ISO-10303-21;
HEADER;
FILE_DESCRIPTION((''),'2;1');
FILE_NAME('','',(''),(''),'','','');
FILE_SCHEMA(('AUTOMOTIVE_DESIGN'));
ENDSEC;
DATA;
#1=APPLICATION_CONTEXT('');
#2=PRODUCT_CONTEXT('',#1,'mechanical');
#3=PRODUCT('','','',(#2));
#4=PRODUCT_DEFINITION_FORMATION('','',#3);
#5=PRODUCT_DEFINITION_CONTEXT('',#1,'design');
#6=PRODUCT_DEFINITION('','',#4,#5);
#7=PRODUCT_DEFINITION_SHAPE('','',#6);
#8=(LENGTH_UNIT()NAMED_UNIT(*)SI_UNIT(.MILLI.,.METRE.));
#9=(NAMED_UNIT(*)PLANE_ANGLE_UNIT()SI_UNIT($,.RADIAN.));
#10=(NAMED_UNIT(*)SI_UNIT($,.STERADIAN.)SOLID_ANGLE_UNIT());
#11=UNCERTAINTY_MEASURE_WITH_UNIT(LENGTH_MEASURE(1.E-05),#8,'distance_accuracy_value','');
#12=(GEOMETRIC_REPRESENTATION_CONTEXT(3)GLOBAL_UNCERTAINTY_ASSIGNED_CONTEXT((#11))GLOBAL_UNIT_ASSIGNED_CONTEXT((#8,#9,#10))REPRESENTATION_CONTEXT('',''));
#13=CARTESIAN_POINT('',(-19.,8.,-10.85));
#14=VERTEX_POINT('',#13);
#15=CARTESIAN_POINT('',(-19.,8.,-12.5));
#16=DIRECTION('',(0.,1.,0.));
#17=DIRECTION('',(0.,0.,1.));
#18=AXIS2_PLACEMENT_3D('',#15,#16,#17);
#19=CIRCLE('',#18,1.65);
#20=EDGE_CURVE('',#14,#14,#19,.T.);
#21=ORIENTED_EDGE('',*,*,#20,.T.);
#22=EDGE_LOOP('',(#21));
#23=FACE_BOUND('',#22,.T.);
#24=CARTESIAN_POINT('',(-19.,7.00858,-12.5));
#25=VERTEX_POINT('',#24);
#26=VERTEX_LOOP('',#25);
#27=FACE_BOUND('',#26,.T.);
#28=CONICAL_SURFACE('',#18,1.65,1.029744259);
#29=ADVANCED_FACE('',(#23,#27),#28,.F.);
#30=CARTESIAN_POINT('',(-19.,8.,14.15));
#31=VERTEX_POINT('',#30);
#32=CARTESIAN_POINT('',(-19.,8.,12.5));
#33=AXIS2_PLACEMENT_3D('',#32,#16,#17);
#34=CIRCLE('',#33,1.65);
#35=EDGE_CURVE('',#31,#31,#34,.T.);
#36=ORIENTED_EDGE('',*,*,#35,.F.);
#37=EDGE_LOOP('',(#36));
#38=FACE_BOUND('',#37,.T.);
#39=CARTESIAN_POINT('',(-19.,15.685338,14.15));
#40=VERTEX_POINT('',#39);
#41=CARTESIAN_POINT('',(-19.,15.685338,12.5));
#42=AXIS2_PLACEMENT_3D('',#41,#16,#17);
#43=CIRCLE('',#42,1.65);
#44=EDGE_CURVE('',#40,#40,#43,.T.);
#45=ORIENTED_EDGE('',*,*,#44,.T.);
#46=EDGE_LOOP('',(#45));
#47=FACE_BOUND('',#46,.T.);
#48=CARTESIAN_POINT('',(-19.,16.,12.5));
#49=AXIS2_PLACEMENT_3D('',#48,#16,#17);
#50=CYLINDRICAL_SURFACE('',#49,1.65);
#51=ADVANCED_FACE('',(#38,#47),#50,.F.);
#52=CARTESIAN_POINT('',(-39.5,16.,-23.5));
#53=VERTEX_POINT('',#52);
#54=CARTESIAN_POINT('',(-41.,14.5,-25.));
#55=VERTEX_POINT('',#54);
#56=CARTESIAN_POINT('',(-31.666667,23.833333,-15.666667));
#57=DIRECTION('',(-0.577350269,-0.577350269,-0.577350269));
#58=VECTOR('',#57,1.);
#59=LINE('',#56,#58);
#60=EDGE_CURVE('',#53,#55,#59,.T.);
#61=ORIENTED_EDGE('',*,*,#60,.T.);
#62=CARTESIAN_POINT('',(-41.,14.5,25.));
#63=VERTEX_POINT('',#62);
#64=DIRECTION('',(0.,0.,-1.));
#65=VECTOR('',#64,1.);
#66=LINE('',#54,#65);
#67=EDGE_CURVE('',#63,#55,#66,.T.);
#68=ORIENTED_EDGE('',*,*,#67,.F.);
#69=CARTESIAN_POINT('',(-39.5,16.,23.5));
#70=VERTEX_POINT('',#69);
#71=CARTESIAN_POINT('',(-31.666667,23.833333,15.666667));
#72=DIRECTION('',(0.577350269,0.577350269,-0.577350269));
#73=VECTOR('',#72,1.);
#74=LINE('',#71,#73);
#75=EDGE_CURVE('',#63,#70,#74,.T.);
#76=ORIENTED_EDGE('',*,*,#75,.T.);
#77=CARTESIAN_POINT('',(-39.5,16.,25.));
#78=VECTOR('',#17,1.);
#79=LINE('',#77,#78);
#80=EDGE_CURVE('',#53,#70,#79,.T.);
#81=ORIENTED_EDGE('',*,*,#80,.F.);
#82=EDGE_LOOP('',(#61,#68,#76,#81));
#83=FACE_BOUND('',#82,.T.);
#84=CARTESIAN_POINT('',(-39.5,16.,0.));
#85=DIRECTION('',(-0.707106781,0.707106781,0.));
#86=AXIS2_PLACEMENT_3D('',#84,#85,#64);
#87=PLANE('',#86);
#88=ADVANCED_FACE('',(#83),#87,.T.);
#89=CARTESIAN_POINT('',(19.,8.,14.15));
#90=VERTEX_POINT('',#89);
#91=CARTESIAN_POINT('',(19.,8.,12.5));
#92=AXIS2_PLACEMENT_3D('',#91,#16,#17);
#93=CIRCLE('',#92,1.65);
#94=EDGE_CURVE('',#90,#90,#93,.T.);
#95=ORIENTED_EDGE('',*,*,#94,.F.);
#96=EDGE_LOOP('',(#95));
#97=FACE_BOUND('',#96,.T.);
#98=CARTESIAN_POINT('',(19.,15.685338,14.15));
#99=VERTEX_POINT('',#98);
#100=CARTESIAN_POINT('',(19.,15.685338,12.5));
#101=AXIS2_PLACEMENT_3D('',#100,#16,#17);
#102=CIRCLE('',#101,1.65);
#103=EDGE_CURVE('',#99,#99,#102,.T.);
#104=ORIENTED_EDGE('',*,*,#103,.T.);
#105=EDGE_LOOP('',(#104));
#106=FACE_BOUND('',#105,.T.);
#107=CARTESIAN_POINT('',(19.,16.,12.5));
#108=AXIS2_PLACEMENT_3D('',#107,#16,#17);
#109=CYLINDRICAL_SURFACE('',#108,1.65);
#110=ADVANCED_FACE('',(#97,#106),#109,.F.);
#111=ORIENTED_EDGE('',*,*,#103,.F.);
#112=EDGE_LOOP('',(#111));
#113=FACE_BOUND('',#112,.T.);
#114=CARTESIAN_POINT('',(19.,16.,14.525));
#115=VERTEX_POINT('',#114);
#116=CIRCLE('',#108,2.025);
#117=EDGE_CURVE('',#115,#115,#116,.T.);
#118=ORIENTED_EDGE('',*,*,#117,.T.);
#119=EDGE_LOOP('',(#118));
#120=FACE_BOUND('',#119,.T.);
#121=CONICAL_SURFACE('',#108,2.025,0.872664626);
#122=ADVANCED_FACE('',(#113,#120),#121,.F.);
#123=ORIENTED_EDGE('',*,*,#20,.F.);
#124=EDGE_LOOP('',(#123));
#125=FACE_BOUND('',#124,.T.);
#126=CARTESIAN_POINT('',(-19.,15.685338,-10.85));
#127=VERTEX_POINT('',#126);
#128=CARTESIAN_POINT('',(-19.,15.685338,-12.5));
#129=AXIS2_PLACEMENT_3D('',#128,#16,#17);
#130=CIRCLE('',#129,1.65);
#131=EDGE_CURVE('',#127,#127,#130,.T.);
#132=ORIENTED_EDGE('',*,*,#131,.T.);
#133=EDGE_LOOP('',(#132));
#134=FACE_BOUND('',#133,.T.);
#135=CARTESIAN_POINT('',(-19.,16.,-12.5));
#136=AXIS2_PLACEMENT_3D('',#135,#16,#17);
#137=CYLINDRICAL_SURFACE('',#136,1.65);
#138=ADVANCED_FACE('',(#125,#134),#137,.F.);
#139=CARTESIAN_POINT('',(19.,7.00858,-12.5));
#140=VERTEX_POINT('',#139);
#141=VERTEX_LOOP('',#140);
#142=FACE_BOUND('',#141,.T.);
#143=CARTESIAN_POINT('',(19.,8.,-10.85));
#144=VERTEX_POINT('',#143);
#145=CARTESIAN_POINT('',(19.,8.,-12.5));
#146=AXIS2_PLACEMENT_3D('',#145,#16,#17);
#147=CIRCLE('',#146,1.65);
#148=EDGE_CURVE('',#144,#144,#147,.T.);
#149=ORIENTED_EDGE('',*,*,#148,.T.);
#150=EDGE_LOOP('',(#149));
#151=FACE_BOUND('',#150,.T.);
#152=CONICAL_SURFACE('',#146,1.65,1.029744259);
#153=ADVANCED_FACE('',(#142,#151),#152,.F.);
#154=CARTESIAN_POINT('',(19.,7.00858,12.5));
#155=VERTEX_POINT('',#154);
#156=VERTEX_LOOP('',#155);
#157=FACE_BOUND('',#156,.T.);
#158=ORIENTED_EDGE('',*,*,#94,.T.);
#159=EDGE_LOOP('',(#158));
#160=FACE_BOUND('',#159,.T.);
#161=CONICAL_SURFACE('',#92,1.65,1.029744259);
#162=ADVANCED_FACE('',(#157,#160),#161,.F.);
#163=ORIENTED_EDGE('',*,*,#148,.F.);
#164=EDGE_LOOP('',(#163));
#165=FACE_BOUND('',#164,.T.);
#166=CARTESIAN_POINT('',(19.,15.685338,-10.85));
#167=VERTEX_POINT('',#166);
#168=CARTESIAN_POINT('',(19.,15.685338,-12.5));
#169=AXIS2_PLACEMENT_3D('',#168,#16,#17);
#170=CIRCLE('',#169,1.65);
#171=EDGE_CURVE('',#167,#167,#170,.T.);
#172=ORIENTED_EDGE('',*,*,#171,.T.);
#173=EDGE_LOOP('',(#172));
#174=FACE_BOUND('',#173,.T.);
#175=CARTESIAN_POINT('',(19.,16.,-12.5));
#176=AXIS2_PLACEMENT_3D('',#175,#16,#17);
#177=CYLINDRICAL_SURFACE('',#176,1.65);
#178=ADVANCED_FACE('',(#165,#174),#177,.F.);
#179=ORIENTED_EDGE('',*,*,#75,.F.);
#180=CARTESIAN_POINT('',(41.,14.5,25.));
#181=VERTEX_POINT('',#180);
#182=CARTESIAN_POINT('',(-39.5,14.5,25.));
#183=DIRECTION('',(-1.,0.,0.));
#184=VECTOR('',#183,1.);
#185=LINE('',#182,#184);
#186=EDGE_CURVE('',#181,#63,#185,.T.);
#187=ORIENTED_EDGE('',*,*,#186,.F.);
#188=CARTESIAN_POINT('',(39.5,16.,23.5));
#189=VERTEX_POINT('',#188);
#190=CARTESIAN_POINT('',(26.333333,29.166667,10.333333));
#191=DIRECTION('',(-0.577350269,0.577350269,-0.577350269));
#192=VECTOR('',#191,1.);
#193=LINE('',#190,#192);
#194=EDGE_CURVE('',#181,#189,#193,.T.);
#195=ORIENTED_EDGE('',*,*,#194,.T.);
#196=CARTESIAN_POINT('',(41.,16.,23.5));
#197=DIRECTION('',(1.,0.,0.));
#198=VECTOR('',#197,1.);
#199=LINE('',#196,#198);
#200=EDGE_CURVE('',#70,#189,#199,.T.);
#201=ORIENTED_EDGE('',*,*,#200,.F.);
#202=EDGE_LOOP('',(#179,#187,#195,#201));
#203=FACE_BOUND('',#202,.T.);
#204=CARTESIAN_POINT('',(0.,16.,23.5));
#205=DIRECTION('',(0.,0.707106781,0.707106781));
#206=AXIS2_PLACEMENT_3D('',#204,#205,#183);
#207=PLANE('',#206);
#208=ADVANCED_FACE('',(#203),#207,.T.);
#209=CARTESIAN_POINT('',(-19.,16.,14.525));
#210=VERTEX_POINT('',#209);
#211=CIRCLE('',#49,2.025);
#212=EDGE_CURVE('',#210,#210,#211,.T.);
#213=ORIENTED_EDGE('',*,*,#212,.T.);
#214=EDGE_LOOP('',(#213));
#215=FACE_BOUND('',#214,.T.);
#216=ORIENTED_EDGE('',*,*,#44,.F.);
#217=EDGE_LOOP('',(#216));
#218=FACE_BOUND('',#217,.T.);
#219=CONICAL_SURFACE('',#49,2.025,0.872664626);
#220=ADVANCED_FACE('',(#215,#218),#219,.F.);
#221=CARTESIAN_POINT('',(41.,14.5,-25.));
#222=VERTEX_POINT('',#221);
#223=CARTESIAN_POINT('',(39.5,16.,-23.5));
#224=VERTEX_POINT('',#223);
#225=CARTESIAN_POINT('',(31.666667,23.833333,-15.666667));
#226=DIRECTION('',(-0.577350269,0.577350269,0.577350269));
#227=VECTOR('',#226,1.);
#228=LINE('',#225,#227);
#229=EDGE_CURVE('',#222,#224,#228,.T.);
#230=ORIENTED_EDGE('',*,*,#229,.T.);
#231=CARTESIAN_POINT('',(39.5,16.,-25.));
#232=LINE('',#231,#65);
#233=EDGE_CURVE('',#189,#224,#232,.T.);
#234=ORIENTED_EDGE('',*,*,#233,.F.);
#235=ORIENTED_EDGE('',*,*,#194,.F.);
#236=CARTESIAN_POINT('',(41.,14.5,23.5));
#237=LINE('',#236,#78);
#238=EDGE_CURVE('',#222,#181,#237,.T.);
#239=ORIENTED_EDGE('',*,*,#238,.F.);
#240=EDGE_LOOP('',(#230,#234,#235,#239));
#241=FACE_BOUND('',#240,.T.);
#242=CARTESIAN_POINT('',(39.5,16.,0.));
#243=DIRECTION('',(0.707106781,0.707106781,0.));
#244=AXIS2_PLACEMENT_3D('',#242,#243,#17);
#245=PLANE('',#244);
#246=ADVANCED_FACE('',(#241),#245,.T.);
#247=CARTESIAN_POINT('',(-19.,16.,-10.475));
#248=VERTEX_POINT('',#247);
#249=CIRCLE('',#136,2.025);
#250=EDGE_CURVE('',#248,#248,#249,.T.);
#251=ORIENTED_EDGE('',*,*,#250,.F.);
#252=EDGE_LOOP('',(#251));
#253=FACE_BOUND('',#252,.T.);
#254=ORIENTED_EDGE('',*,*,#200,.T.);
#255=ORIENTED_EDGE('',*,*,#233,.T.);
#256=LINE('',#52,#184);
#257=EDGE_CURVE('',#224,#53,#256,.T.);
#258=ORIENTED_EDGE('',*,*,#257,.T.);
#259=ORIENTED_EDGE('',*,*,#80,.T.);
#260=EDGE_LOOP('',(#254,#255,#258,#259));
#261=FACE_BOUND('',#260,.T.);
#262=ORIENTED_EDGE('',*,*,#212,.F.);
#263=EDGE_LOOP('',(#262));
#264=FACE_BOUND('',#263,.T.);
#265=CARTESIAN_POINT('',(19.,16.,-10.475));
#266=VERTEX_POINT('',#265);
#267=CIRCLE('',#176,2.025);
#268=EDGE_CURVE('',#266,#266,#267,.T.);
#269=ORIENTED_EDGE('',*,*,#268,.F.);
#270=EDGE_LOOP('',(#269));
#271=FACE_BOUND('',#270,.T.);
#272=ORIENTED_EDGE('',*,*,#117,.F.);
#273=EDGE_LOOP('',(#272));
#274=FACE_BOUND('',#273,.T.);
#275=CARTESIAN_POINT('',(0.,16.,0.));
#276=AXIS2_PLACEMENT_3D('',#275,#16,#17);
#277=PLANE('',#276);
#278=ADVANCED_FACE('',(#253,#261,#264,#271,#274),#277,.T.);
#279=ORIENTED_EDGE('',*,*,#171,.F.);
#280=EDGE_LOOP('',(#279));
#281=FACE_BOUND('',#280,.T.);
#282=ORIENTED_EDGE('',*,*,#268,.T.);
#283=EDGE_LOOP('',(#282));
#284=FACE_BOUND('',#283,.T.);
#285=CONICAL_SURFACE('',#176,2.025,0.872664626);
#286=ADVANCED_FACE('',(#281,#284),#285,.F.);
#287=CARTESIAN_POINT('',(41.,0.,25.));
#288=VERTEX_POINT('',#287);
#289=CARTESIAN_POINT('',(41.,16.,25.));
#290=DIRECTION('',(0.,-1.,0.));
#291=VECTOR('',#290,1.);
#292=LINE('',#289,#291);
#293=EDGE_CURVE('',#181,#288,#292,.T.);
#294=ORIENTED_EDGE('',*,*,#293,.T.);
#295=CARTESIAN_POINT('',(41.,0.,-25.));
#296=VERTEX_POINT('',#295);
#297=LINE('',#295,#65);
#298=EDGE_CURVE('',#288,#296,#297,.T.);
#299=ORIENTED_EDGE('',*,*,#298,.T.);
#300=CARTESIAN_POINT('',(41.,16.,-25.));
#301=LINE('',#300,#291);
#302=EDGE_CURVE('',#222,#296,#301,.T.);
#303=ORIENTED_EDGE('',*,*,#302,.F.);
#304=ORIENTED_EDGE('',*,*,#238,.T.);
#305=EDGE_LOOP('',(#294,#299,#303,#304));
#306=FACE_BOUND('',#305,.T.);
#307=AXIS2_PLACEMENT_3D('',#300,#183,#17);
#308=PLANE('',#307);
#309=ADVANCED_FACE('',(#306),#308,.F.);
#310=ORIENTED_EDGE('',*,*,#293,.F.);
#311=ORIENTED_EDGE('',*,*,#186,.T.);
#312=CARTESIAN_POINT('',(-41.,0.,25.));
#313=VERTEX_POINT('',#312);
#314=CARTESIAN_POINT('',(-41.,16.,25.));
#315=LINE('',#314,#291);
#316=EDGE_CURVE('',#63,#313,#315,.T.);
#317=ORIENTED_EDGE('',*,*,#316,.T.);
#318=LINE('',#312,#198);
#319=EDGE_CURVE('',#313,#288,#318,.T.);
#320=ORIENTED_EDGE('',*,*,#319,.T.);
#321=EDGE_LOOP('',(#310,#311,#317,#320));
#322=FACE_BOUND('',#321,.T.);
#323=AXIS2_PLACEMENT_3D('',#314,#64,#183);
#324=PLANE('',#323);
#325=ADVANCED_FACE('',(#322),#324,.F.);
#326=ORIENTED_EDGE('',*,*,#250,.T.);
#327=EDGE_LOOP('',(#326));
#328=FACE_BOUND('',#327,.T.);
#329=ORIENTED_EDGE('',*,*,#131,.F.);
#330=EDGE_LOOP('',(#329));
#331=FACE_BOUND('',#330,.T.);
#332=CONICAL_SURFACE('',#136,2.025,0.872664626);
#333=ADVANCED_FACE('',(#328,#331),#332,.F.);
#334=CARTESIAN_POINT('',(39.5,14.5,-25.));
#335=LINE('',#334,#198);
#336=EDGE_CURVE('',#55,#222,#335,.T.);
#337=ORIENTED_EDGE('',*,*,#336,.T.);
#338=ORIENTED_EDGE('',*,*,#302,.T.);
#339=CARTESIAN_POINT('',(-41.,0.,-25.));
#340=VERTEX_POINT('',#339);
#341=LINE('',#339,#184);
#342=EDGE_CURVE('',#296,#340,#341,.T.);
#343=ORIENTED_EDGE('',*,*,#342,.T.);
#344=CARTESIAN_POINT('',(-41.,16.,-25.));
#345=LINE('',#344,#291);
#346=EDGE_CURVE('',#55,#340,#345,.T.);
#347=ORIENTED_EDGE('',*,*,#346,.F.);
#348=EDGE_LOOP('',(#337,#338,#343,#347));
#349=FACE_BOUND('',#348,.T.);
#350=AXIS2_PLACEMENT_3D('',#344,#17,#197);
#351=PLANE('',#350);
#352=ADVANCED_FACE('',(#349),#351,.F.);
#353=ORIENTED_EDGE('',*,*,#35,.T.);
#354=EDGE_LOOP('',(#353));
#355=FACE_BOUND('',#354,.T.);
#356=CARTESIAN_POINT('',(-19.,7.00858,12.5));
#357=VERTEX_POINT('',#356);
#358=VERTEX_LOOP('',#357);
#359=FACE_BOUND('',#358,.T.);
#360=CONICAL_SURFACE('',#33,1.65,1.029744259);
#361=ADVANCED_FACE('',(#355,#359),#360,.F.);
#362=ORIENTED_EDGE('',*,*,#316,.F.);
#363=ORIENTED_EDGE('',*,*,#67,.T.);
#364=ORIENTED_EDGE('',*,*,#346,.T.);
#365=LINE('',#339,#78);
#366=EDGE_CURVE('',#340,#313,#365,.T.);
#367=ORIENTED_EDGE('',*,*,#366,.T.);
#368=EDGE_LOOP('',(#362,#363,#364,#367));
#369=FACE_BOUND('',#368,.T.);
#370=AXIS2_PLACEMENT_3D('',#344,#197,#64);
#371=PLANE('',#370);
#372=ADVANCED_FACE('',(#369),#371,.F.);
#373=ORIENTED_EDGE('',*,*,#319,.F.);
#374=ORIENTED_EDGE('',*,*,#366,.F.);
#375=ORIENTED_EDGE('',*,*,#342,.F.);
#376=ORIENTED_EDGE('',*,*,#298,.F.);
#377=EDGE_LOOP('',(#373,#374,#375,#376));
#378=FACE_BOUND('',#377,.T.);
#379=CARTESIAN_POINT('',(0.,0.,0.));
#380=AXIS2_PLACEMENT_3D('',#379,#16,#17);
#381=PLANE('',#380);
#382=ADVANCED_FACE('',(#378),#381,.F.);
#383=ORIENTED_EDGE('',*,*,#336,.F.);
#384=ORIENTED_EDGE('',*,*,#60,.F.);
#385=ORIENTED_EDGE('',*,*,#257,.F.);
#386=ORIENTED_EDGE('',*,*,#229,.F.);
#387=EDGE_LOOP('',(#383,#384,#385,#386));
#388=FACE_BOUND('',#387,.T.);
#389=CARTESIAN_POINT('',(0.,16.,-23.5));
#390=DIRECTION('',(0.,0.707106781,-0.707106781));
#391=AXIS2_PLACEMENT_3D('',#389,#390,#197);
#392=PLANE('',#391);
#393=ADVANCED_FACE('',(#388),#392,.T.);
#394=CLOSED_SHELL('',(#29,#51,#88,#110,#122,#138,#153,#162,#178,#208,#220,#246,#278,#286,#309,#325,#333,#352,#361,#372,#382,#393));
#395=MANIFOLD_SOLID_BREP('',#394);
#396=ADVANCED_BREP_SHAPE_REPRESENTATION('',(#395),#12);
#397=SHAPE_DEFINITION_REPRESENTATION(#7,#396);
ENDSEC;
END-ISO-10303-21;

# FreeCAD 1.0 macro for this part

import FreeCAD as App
import Part
import Sketcher
Q = App.Units.Quantity


def edges_at(feature, points):
    """Names of the edges that pass closest to the given points."""
    edges = feature.Shape.Edges
    near = lambda p: min(range(len(edges)), key=lambda i: edges[i].distToShape(Part.Vertex(*p))[0])
    return sorted({f"Edge{near(p) + 1}" for p in points})


def add_polygon(sketch, points):
    """Adds a closed chain of lines whose ends are joined by coincident constraints."""
    first, n = sketch.GeometryCount, len(points)
    for a, b in zip(points, points[1:] + points[:1]):
        sketch.addGeometry(Part.LineSegment(App.Vector(*a, 0), App.Vector(*b, 0)), False)
    for i in range(n):
        sketch.addConstraint(Sketcher.Constraint("Coincident", first + i, 2, first + (i + 1) % n, 1))

doc = App.newDocument("Part")
params = doc.addObject("Spreadsheet::Sheet", "Params")
for row, (alias, value) in enumerate([
    ("sketch1_width", "82 mm"),
    ("sketch1_height", "50 mm"),
    ("pad1_length", "16 mm"),
    ("chamfer_size", "1.5 mm"),
    ("chamfer2_size", "1.5 mm"),
    ("chamfer3_size", "1.5 mm"),
    ("chamfer4_size", "1.5 mm"),
    ("sketch2_diameter", "3.3 mm"),
    ("hole_diameter", "3.3 mm"),
    ("hole_depth", "8 mm"),
    ("hole_csink_diameter", "4.05 mm"),
], start=1):
    params.set(f"A{row}", alias)
    params.set(f"B{row}", "=" + value)
    params.setAlias(f"B{row}", alias)

body = doc.addObject("PartDesign::Body", "Body")

sketch1 = doc.addObject("Sketcher::SketchObject", "Sketch")
body.addObject(sketch1)
sketch1.AttachmentSupport = (doc.XZ_Plane, [""])
sketch1.MapMode = "FlatFace"
add_polygon(sketch1, [(-41, -25), (-41, 25), (41, 25), (41, -25)])
sketch1.addConstraint(Sketcher.Constraint("Vertical", 0))
sketch1.addConstraint(Sketcher.Constraint("Horizontal", 1))
sketch1.addConstraint(Sketcher.Constraint("Vertical", 2))
sketch1.addConstraint(Sketcher.Constraint("Horizontal", 3))
sketch1.addConstraint(Sketcher.Constraint("Symmetric", 0, 2, 2, 2, -1, 1))
sketch1.addConstraint(Sketcher.Constraint("DistanceX", 1, 1, 1, 2, Q("82 mm")))
sketch1.addConstraint(Sketcher.Constraint("DistanceY", 0, 1, 0, 2, Q("50 mm")))
sketch1.setExpression("Constraints[9]", "Params.sketch1_width")
sketch1.setExpression("Constraints[10]", "Params.sketch1_height")
pad1 = doc.addObject("PartDesign::Pad", "Pad")
body.addObject(pad1)
pad1.Profile = sketch1
pad1.setExpression("Length", "Params.pad1_length")
pad1.Reversed = True
doc.recompute()

chamfer = doc.addObject("PartDesign::Chamfer", "Chamfer")
body.addObject(chamfer)
chamfer.Base = (pad1, edges_at(pad1, [(-41, 16, 0)]))
chamfer.setExpression("Size", "Params.chamfer_size")
doc.recompute()

chamfer2 = doc.addObject("PartDesign::Chamfer", "Chamfer001")
body.addObject(chamfer2)
chamfer2.Base = (chamfer, edges_at(chamfer, [(0.75, 16, 25)]))
chamfer2.setExpression("Size", "Params.chamfer2_size")
doc.recompute()

chamfer3 = doc.addObject("PartDesign::Chamfer", "Chamfer002")
body.addObject(chamfer3)
chamfer3.Base = (chamfer2, edges_at(chamfer2, [(41, 16, -0.75)]))
chamfer3.setExpression("Size", "Params.chamfer3_size")
doc.recompute()

chamfer4 = doc.addObject("PartDesign::Chamfer", "Chamfer003")
body.addObject(chamfer4)
chamfer4.Base = (chamfer3, edges_at(chamfer3, [(0, 16, -25)]))
chamfer4.setExpression("Size", "Params.chamfer4_size")

sketch2 = doc.addObject("Sketcher::SketchObject", "Sketch001")
body.addObject(sketch2)
sketch2.AttachmentSupport = (doc.XZ_Plane, [""])
sketch2.MapMode = "FlatFace"
sketch2.AttachmentOffset = App.Placement(App.Vector(0, 0, -16), App.Rotation())
sketch2.addGeometry(Part.Circle(App.Vector(-19, -12.5, 0), App.Vector(0, 0, 1), 1.6), False)
sketch2.addGeometry(Part.Circle(App.Vector(19, -12.5, 0), App.Vector(0, 0, 1), 1.6), False)
sketch2.addGeometry(Part.Circle(App.Vector(19, 12.5, 0), App.Vector(0, 0, 1), 1.6), False)
sketch2.addGeometry(Part.Circle(App.Vector(-19, 12.5, 0), App.Vector(0, 0, 1), 1.6), False)
sketch2.addConstraint(Sketcher.Constraint("Equal", 0, 1))
sketch2.addConstraint(Sketcher.Constraint("Equal", 1, 2))
sketch2.addConstraint(Sketcher.Constraint("Equal", 2, 3))
sketch2.addConstraint(Sketcher.Constraint("Symmetric", 0, 3, 2, 3, -1, 1))
sketch2.addConstraint(Sketcher.Constraint("Symmetric", 1, 3, 3, 3, -1, 1))
sketch2.addConstraint(Sketcher.Constraint("Symmetric", 0, 3, 1, 3, -2))
sketch2.addConstraint(Sketcher.Constraint("Diameter", 0, Q("3.3 mm")))
sketch2.addConstraint(Sketcher.Constraint("DistanceX", 0, 3, -1, 1, Q("19 mm")))
sketch2.addConstraint(Sketcher.Constraint("DistanceY", 1, 3, 2, 3, Q("25 mm")))
sketch2.setExpression("Constraints[6]", "Params.sketch2_diameter")
doc.recompute()
hole = doc.addObject("PartDesign::Hole", "Hole")
body.addObject(hole)
hole.Profile = sketch2
hole.ThreadType = "None"
hole.setExpression("Diameter", "Params.hole_diameter")
hole.DepthType = "Dimension"
hole.setExpression("Depth", "Params.hole_depth")
hole.DrillPoint = "Angled"
hole.DrillPointAngle = 118
hole.HoleCutType = "Countersink"
hole.setExpression("HoleCutDiameter", "Params.hole_csink_diameter")
hole.HoleCutCountersinkAngle = 100
hole.Reversed = True

doc.recompute()
